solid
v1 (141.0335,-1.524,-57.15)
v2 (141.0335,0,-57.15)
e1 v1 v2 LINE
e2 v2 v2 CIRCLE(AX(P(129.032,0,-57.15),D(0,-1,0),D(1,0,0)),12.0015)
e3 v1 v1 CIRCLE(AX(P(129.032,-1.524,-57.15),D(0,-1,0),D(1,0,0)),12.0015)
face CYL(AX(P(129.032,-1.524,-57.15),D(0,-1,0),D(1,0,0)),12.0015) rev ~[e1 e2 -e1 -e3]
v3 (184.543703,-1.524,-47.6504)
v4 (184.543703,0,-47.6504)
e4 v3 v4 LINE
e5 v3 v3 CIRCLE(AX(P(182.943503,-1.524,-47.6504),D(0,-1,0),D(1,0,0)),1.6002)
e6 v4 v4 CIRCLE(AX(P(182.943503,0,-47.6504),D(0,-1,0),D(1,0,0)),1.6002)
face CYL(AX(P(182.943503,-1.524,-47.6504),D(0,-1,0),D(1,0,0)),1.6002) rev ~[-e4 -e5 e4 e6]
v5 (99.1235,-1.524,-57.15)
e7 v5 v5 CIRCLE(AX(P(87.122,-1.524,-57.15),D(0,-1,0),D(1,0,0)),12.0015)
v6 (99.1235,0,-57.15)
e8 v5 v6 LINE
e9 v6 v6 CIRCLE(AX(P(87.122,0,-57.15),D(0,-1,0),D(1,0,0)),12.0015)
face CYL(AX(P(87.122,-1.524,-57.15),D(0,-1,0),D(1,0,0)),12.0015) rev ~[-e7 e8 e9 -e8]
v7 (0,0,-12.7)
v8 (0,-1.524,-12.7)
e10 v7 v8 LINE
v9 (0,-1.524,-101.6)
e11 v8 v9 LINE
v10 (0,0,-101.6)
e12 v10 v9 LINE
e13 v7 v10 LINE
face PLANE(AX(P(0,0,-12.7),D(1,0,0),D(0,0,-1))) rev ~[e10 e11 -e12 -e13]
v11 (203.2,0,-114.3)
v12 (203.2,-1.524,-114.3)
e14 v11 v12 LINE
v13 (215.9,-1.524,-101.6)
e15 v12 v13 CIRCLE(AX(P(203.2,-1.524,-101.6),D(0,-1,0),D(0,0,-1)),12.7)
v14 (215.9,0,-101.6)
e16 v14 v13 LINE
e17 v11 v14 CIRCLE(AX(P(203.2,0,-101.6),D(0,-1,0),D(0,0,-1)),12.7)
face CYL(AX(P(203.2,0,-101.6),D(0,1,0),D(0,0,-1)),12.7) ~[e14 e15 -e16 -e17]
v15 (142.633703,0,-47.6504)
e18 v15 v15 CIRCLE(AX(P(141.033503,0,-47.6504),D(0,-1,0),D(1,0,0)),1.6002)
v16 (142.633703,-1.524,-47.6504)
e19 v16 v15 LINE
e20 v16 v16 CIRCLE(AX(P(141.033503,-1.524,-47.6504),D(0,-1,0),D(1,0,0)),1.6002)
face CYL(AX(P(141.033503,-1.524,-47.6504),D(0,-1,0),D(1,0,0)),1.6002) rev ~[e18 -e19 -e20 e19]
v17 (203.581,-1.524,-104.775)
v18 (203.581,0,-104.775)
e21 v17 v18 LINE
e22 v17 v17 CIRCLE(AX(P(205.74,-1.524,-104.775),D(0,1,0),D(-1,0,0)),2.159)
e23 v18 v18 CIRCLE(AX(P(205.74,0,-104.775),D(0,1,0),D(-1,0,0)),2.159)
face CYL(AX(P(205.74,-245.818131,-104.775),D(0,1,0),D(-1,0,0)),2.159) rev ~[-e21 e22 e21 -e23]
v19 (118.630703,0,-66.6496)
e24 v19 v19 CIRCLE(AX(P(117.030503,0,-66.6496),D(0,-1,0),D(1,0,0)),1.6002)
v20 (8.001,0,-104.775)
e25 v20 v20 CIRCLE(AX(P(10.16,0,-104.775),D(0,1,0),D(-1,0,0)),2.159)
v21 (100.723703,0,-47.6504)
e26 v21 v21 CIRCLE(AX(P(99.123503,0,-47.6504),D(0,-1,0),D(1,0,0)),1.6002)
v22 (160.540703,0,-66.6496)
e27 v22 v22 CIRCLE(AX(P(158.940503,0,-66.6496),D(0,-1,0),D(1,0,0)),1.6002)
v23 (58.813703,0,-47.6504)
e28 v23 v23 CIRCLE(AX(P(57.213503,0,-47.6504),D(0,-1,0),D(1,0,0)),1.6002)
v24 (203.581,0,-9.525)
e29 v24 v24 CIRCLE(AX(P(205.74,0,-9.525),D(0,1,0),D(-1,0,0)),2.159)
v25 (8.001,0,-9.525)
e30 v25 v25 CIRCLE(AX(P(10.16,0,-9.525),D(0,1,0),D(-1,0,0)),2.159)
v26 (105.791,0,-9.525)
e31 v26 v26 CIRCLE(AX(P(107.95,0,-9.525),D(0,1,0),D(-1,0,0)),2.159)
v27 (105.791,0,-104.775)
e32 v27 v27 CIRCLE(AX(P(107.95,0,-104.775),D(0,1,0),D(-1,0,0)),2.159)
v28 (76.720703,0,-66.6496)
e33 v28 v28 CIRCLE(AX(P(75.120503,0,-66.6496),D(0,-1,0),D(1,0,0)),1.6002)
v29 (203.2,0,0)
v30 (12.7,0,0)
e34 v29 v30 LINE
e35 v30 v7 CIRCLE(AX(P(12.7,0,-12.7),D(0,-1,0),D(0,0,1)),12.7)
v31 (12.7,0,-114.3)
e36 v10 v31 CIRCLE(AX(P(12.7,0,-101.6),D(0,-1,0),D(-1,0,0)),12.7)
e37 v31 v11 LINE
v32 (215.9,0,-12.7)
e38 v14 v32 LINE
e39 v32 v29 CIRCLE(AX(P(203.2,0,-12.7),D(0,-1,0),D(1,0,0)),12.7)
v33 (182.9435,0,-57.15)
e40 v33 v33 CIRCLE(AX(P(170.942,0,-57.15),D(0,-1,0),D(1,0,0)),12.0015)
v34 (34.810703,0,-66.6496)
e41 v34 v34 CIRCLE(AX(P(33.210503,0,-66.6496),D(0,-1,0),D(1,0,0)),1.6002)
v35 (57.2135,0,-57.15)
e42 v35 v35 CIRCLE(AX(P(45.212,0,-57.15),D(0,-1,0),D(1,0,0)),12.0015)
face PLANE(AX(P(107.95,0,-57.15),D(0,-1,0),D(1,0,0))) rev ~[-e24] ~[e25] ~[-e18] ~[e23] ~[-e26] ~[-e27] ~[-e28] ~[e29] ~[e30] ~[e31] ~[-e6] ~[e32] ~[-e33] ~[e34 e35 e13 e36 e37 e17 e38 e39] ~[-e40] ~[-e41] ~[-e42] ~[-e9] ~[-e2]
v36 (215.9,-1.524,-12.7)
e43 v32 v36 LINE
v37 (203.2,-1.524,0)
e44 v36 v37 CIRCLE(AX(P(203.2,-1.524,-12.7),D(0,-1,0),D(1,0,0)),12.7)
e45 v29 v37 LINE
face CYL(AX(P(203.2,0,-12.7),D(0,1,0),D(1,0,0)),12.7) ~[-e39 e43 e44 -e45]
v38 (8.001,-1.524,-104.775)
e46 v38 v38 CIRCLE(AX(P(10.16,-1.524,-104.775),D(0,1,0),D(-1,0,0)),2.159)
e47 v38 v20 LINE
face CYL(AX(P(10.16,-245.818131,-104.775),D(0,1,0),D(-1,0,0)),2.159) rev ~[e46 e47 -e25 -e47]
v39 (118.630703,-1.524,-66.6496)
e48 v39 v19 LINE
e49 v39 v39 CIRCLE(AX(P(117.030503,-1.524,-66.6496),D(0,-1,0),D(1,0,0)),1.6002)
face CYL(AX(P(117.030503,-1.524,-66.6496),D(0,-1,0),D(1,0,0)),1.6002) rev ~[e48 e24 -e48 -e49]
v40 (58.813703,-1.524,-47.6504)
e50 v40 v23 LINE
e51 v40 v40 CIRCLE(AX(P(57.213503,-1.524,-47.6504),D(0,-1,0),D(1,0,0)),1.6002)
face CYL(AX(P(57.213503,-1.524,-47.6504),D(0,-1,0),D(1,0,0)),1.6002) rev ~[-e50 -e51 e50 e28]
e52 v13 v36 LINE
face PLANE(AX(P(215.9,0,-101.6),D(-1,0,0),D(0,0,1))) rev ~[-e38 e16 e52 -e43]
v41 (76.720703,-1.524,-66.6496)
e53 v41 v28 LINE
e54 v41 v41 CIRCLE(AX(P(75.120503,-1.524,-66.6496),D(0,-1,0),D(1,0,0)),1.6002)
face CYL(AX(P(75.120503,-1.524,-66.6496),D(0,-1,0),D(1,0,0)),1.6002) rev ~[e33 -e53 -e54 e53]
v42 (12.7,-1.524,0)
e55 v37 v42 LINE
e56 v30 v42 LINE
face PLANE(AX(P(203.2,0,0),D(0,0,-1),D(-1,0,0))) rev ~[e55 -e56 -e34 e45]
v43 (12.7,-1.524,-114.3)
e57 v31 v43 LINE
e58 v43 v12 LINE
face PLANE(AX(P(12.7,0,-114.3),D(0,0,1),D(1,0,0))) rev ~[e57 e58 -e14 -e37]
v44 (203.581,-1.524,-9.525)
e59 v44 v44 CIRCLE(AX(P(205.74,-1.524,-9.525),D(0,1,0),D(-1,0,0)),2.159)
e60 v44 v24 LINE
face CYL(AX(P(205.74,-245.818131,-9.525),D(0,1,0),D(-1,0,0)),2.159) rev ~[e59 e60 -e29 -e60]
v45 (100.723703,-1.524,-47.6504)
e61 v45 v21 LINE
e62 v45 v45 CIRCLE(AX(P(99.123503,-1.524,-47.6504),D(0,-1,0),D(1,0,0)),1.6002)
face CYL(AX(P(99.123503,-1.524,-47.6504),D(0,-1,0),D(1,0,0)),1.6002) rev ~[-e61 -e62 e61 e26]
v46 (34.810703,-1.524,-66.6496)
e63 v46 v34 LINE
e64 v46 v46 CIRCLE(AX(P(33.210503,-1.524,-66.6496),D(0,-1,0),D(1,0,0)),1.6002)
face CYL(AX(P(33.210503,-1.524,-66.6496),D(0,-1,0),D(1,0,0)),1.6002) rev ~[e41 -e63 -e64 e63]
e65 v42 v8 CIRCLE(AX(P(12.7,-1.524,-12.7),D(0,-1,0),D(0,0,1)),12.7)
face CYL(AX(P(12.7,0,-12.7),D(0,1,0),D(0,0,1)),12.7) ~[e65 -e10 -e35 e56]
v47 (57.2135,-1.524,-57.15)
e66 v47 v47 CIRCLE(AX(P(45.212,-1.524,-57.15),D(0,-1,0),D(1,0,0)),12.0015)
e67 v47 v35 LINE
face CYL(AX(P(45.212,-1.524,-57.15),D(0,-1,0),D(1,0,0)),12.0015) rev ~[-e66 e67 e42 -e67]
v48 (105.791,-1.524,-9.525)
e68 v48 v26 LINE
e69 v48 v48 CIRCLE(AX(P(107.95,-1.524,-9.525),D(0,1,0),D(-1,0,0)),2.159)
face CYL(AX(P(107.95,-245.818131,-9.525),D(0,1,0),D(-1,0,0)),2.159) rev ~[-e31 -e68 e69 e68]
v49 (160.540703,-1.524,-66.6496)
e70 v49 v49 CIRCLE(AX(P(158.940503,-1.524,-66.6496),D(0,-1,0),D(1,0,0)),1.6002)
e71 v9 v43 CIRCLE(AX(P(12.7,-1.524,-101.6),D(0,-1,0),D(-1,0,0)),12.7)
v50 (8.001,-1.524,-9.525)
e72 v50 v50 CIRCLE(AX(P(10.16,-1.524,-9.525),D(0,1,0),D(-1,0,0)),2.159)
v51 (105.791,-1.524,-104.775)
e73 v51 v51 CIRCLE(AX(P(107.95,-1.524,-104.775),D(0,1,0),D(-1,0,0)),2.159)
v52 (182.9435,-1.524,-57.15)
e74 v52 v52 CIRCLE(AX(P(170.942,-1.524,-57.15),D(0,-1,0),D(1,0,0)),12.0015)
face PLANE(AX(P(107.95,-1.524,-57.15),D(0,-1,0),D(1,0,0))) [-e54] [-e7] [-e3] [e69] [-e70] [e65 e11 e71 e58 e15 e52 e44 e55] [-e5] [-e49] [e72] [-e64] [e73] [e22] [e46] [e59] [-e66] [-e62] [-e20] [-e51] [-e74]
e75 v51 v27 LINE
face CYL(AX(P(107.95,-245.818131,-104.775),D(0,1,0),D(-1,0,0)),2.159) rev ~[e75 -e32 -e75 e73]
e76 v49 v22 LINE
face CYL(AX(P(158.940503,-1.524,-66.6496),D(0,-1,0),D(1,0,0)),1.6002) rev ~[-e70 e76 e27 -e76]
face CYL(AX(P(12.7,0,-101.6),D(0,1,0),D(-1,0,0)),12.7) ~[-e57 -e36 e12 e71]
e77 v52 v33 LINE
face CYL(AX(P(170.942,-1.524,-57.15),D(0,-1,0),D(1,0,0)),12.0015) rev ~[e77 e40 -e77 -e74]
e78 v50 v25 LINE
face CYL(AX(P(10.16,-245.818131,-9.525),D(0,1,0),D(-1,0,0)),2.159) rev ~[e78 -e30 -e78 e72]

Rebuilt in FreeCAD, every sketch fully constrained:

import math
import FreeCAD as App
import Part
import Sketcher

V = App.Vector
Q = App.Units.Quantity

doc = App.newDocument("Part")
params = doc.addObject("Spreadsheet::Sheet", "Params")
for row, (alias, value) in enumerate([
    ("sketch1_radius", "0.5 in"),
    ("sketch1_width", "7.5 in"),
    ("sketch1_height", "3.5 in"),
    ("pad1_length", "0.06 in"),
    ("sketch2_diameter", "0.945 in"),
    ("sketch2_diameter2", "0.126 in"),
    ("sketch3_diameter", "0.17 in"),
    ("hole_diameter", "0.17 in"),
], start=1):
    params.set(f"A{row}", alias)
    params.set(f"B{row}", "=" + value)
    params.setAlias(f"B{row}", alias)

body = doc.addObject("PartDesign::Body", "Body")

sketch1 = body.newObject("Sketcher::SketchObject", "Sketch")
sketch1.AttachmentSupport = (doc.getObject("XZ_Plane"), [""])
sketch1.MapMode = "FlatFace"
sketch1.addGeometry([
    Part.LineSegment(V(203, 0, 0), V(13, 0, 0)),
    Part.ArcOfCircle(Part.Circle(V(13, -13, 0), V(0, 0, 1), 13), math.radians(90), math.radians(180)),
    Part.LineSegment(V(0, -13, 0), V(0, -102, 0)),
    Part.ArcOfCircle(Part.Circle(V(13, -102, 0), V(0, 0, 1), 13), math.radians(180), math.radians(270)),
    Part.LineSegment(V(13, -114, 0), V(203, -114, 0)),
    Part.ArcOfCircle(Part.Circle(V(203, -102, 0), V(0, 0, 1), 13), math.radians(-90), math.radians(0)),
    Part.LineSegment(V(216, -102, 0), V(216, -13, 0)),
    Part.ArcOfCircle(Part.Circle(V(203, -13, 0), V(0, 0, 1), 13), math.radians(0), math.radians(90)),
], False)
sketch1.addConstraint([
    Sketcher.Constraint("Tangent", 0, 2, 1, 1),
    Sketcher.Constraint("Tangent", 1, 2, 2, 1),
    Sketcher.Constraint("Tangent", 2, 2, 3, 1),
    Sketcher.Constraint("Tangent", 3, 2, 4, 1),
    Sketcher.Constraint("Tangent", 4, 2, 5, 1),
    Sketcher.Constraint("Tangent", 5, 2, 6, 1),
    Sketcher.Constraint("Tangent", 6, 2, 7, 1),
    Sketcher.Constraint("Tangent", 7, 2, 0, 1),
    Sketcher.Constraint("Horizontal", 0),
    Sketcher.Constraint("Vertical", 2),
    Sketcher.Constraint("Horizontal", 4),
    Sketcher.Constraint("Vertical", 6),
    Sketcher.Constraint("Equal", 1, 3),
    Sketcher.Constraint("Equal", 3, 5),
    Sketcher.Constraint("Equal", 5, 7),
    Sketcher.Constraint("PointOnObject", 0, 2, -1),
    Sketcher.Constraint("PointOnObject", 1, 2, -2),
    Sketcher.Constraint("Radius", 1, Q("0.5 in")),
    Sketcher.Constraint("DistanceX", 0, 2, 0, 1, Q("7.5 in")),
    Sketcher.Constraint("DistanceY", 2, 2, 2, 1, Q("3.5 in")),
])
sketch1.setExpression("Constraints[17]", "Params.sketch1_radius")
sketch1.setExpression("Constraints[18]", "Params.sketch1_width")
sketch1.setExpression("Constraints[19]", "Params.sketch1_height")
pad1 = body.newObject("PartDesign::Pad", "Pad")
pad1.Profile = sketch1
pad1.setExpression("Length", "Params.pad1_length")

sketch2 = body.newObject("Sketcher::SketchObject", "Sketch001")
sketch2.AttachmentSupport = (doc.getObject("XZ_Plane"), [""])
sketch2.MapMode = "FlatFace"
sketch2.AttachmentOffset = App.Placement(V(0, 0, 0.06 * 25.4), App.Rotation())
sketch2.addGeometry([
    Part.Circle(V(45.2, -57.1, 0), V(0, 0, 1), 12),
    Part.Circle(V(33.2, -66.6, 0), V(0, 0, 1), 1.6),
    Part.Circle(V(57.2, -47.7, 0), V(0, 0, 1), 1.6),
    Part.Circle(V(99.1, -47.7, 0), V(0, 0, 1), 1.6),
    Part.Circle(V(87.1, -57.1, 0), V(0, 0, 1), 12),
    Part.Circle(V(75.1, -66.6, 0), V(0, 0, 1), 1.6),
    Part.Circle(V(141, -47.7, 0), V(0, 0, 1), 1.6),
    Part.Circle(V(129, -57.1, 0), V(0, 0, 1), 12),
    Part.Circle(V(117, -66.6, 0), V(0, 0, 1), 1.6),
    Part.Circle(V(182.9, -47.7, 0), V(0, 0, 1), 1.6),
    Part.Circle(V(170.9, -57.1, 0), V(0, 0, 1), 12),
    Part.Circle(V(158.9, -66.6, 0), V(0, 0, 1), 1.6),
], False)
sketch2.addConstraint([
    Sketcher.Constraint("Equal", 1, 2),
    Sketcher.Constraint("Equal", 2, 3),
    Sketcher.Constraint("Equal", 0, 4),
    Sketcher.Constraint("Equal", 3, 5),
    Sketcher.Constraint("Equal", 5, 6),
    Sketcher.Constraint("Equal", 4, 7),
    Sketcher.Constraint("Equal", 6, 8),
    Sketcher.Constraint("Equal", 8, 9),
    Sketcher.Constraint("Equal", 7, 10),
    Sketcher.Constraint("Equal", 9, 11),
    Sketcher.Constraint("Horizontal", 2, 3, 3, 3),
    Sketcher.Constraint("Horizontal", 0, 3, 4, 3),
    Sketcher.Constraint("Horizontal", 1, 3, 5, 3),
    Sketcher.Constraint("Horizontal", 3, 3, 6, 3),
    Sketcher.Constraint("Horizontal", 4, 3, 7, 3),
    Sketcher.Constraint("Horizontal", 5, 3, 8, 3),
    Sketcher.Constraint("Horizontal", 6, 3, 9, 3),
    Sketcher.Constraint("Horizontal", 7, 3, 10, 3),
    Sketcher.Constraint("Horizontal", 8, 3, 11, 3),
    Sketcher.Constraint("Diameter", 0, Q("0.945 in")),
    Sketcher.Constraint("Diameter", 1, Q("0.126 in")),
    Sketcher.Constraint("DistanceX", 2, 3, 6, 3, Q("3.3 in")),
    Sketcher.Constraint("DistanceX", 3, 3, 9, 3, Q("3.3 in")),
    Sketcher.Constraint("DistanceX", -1, 1, 0, 3, Q("1.78 in")),
    Sketcher.Constraint("DistanceY", 0, 3, -1, 1, Q("2.25 in")),
    Sketcher.Constraint("DistanceX", -1, 1, 4, 3, Q("3.43 in")),
    Sketcher.Constraint("DistanceX", -1, 1, 7, 3, Q("5.08 in")),
    Sketcher.Constraint("DistanceX", -1, 1, 10, 3, Q("6.73 in")),
    Sketcher.Constraint("DistanceX", 2, 3, 3, 3, Q("1.65 in")),
    Sketcher.Constraint("DistanceX", 1, 3, 5, 3, Q("1.65 in")),
    Sketcher.Constraint("DistanceX", 5, 3, 8, 3, Q("1.65 in")),
    Sketcher.Constraint("DistanceX", 8, 3, 11, 3, Q("1.65 in")),
    Sketcher.Constraint("DistanceY", 1, 3, -1, 1, Q("2.624 in")),
    Sketcher.Constraint("DistanceY", 2, 3, -1, 1, Q("1.876 in")),
    Sketcher.Constraint("DistanceX", 1, 3, 2, 3, Q("0.945 in")),
    Sketcher.Constraint("DistanceX", -1, 1, 1, 3, Q("1.3075001 in")),
])
sketch2.setExpression("Constraints[19]", "Params.sketch2_diameter")
sketch2.setExpression("Constraints[20]", "Params.sketch2_diameter2")
pocket1 = body.newObject("PartDesign::Pocket", "Pocket")
pocket1.Profile = sketch2
pocket1.Type = "ThroughAll"

sketch3 = body.newObject("Sketcher::SketchObject", "Sketch002")
sketch3.AttachmentSupport = (doc.getObject("XZ_Plane"), [""])
sketch3.MapMode = "FlatFace"
sketch3.AttachmentOffset = App.Placement(V(0, 0, 0.06 * 25.4), App.Rotation())
sketch3.addGeometry([
    Part.Circle(V(10.2, -9.5, 0), V(0, 0, 1), 2.2),
    Part.Circle(V(108, -9.5, 0), V(0, 0, 1), 2.2),
    Part.Circle(V(205.7, -9.5, 0), V(0, 0, 1), 2.2),
    Part.Circle(V(205.7, -104.8, 0), V(0, 0, 1), 2.2),
    Part.Circle(V(108, -104.8, 0), V(0, 0, 1), 2.2),
    Part.Circle(V(10.2, -104.8, 0), V(0, 0, 1), 2.2),
], False)
sketch3.addConstraint([
    Sketcher.Constraint("Equal", 0, 1),
    Sketcher.Constraint("Equal", 1, 2),
    Sketcher.Constraint("Equal", 2, 3),
    Sketcher.Constraint("Equal", 3, 4),
    Sketcher.Constraint("Equal", 4, 5),
    Sketcher.Constraint("Horizontal", 0, 3, 1, 3),
    Sketcher.Constraint("Horizontal", 1, 3, 2, 3),
    Sketcher.Constraint("Horizontal", 3, 3, 4, 3),
    Sketcher.Constraint("Horizontal", 4, 3, 5, 3),
    Sketcher.Constraint("Vertical", 2, 3, 3, 3),
    Sketcher.Constraint("Vertical", 1, 3, 4, 3),
    Sketcher.Constraint("Vertical", 0, 3, 5, 3),
    Sketcher.Constraint("Diameter", 0, Q("0.17 in")),
    Sketcher.Constraint("DistanceX", -1, 1, 0, 3, Q("0.4 in")),
    Sketcher.Constraint("DistanceX", -1, 1, 2, 3, Q("8.1 in")),
    Sketcher.Constraint("DistanceX", -1, 1, 1, 3, Q("4.25 in")),
    Sketcher.Constraint("DistanceY", 3, 3, 2, 3, Q("3.75 in")),
    Sketcher.Constraint("DistanceY", 0, 3, -1, 1, Q("0.375 in")),
])
sketch3.setExpression("Constraints[12]", "Params.sketch3_diameter")
doc.recompute()
hole = body.newObject("PartDesign::Hole", "Hole")
hole.Profile = sketch3
hole.ThreadType = "None"
hole.setExpression("Diameter", "Params.hole_diameter")
hole.DepthType = "ThroughAll"

doc.recompute()
